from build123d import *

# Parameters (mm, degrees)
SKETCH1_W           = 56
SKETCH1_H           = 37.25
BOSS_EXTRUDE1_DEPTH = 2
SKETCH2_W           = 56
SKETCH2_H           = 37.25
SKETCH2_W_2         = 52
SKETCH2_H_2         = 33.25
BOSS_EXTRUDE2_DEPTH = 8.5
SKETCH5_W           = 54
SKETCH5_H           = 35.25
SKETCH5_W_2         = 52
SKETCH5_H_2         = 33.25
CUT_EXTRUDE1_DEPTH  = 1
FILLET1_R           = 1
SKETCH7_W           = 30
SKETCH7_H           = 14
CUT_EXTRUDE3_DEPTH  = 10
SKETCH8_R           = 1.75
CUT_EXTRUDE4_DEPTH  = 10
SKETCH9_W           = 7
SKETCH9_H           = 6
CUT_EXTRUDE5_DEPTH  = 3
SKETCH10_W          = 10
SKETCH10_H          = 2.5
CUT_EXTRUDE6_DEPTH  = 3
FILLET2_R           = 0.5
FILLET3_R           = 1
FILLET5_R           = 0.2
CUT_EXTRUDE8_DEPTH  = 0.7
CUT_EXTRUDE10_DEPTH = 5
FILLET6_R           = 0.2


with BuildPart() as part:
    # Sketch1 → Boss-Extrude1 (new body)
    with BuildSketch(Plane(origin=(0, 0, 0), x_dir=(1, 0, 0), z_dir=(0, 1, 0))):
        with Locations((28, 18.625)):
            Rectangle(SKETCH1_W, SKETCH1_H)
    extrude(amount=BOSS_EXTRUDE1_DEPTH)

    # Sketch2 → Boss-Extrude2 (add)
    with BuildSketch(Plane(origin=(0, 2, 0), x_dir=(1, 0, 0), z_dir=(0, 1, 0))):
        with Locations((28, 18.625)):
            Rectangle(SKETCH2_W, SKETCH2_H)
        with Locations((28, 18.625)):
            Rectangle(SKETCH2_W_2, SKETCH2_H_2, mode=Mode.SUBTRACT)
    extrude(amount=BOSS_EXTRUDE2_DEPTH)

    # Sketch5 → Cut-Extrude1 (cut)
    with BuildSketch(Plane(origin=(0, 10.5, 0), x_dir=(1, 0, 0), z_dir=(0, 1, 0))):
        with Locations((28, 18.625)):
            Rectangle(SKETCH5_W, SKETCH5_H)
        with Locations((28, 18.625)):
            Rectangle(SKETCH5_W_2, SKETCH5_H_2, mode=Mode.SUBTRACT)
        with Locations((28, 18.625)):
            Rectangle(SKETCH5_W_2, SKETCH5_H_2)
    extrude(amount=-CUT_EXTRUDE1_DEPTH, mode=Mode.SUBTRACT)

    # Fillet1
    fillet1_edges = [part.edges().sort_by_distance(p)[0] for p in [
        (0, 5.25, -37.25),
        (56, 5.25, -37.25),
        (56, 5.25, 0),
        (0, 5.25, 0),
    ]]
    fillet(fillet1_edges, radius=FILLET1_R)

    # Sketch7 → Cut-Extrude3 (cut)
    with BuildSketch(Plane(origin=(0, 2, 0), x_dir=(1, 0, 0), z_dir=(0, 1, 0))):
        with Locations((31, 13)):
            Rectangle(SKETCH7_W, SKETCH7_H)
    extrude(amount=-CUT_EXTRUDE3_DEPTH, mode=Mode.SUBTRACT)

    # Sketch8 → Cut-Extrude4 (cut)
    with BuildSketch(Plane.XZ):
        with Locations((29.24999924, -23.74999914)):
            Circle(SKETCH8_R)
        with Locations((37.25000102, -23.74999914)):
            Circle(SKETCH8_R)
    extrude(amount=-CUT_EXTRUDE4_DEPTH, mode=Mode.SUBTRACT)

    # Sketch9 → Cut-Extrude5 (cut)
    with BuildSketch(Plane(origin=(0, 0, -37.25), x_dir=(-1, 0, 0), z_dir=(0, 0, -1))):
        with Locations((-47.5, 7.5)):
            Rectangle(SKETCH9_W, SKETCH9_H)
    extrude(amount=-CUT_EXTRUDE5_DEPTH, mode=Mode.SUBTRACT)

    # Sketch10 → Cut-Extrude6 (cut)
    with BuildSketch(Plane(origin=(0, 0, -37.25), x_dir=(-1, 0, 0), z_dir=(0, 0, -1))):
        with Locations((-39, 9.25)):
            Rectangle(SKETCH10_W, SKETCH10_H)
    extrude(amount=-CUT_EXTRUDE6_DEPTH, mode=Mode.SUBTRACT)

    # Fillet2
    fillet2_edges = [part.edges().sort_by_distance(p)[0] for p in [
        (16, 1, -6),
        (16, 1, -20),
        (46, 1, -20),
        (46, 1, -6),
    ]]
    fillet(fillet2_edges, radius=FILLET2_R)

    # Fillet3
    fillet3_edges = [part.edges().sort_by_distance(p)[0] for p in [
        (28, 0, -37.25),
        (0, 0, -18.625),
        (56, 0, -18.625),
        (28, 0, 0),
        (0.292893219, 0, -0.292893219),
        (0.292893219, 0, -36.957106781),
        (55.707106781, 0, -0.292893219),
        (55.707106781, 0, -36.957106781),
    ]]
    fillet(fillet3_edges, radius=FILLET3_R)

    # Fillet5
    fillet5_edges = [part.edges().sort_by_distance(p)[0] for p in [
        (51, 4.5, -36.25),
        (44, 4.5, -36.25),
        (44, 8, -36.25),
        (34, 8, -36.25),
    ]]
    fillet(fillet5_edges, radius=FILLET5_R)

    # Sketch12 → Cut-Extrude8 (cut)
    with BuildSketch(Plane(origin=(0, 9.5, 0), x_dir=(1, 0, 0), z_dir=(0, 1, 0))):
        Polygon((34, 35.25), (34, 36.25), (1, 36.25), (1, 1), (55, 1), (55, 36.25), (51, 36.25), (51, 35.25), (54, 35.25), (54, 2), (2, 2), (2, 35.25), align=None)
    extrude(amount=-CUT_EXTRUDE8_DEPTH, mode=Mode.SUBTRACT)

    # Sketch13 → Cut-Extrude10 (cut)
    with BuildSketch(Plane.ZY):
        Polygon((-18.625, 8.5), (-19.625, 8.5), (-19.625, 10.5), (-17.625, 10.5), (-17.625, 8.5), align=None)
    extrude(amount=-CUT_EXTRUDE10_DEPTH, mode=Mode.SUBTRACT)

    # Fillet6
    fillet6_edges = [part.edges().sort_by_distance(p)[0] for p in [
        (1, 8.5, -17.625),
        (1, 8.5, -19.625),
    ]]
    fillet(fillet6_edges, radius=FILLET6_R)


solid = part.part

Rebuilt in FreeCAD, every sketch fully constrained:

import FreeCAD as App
import Part
import Sketcher
from FreeCAD import Vector
Q = App.Units.Quantity


def edges_at(feature, points):
    """Names of the edges that pass closest to the given points."""
    edges = feature.Shape.Edges
    near = lambda p: min(range(len(edges)), key=lambda i: edges[i].distToShape(Part.Vertex(*p))[0])
    return sorted({f"Edge{near(p) + 1}" for p in points})


def add_polygon(sketch, points):
    """Adds a closed chain of lines whose ends are joined by coincident constraints."""
    first, n = sketch.GeometryCount, len(points)
    for a, b in zip(points, points[1:] + points[:1]):
        sketch.addGeometry(Part.LineSegment(App.Vector(*a, 0), App.Vector(*b, 0)), False)
    for i in range(n):
        sketch.addConstraint(Sketcher.Constraint("Coincident", first + i, 2, first + (i + 1) % n, 1))

doc = App.newDocument("Part")
params = doc.addObject("Spreadsheet::Sheet", "Params")
for row, (alias, value) in enumerate([
    ("sketch1_width", "56 mm"),
    ("sketch1_height", "37.25 mm"),
    ("pad1_length", "2 mm"),
    ("sketch2_width", "56 mm"),
    ("sketch2_width2", "52 mm"),
    ("sketch2_height", "37.25 mm"),
    ("pad2_length", "8.5 mm"),
    ("sketch3_width", "54 mm"),
    ("sketch3_height", "35.25 mm"),
    ("pocket1_length", "1 mm"),
    ("fillet_radius", "1 mm"),
    ("sketch4_width", "30 mm"),
    ("sketch4_height", "14 mm"),
    ("pocket2_length", "10 mm"),
    ("sketch5_diameter", "3.5 mm"),
    ("pocket3_length", "10 mm"),
    ("sketch6_width", "7 mm"),
    ("sketch6_height", "6 mm"),
    ("pocket4_length", "3 mm"),
    ("sketch7_width", "10 mm"),
    ("sketch7_height", "2.5 mm"),
    ("pocket5_length", "3 mm"),
    ("fillet2_radius", "0.5 mm"),
    ("fillet3_radius", "1 mm"),
    ("fillet4_radius", "0.2 mm"),
    ("sketch8_width", "33 mm"),
    ("sketch8_width2", "54 mm"),
    ("sketch8_width3", "4 mm"),
    ("sketch8_width4", "3 mm"),
    ("sketch8_width5", "52 mm"),
    ("pocket6_length", "0.7 mm"),
    ("sketch9_width", "2 mm"),
    ("pocket7_length", "5 mm"),
    ("fillet5_radius", "0.2 mm"),
], start=1):
    params.set(f"A{row}", alias)
    params.set(f"B{row}", "=" + value)
    params.setAlias(f"B{row}", alias)

body = doc.addObject("PartDesign::Body", "Body")

# Sketch on XZ plane
sketch1 = body.newObject("Sketcher::SketchObject", "Sketch")
sketch1.AttachmentSupport = (doc.getObject("XZ_Plane"), [""])
sketch1.MapMode = "FlatFace"
add_polygon(sketch1, [(0, -37.25), (0, 0), (56, 0), (56, -37.25)])  # lines 0-3
sketch1.addConstraint([
    Sketcher.Constraint("Vertical", 0),
    Sketcher.Constraint("Horizontal", 1),
    Sketcher.Constraint("Vertical", 2),
    Sketcher.Constraint("Horizontal", 3),
    Sketcher.Constraint("Coincident", 0, 2, -1, 1),
    Sketcher.Constraint("DistanceX", 1, 1, 1, 2, Q("56 mm")),
    Sketcher.Constraint("DistanceY", 0, 1, 0, 2, Q("37.25 mm")),
])
sketch1.setExpression("Constraints[9]", "Params.sketch1_width")
sketch1.setExpression("Constraints[10]", "Params.sketch1_height")
pad1 = body.newObject("PartDesign::Pad", "Pad")
pad1.Profile = sketch1
pad1.setExpression("Length", "Params.pad1_length")
pad1.Reversed = True

# Sketch on XZ plane
sketch2 = body.newObject("Sketcher::SketchObject", "Sketch001")
sketch2.AttachmentSupport = (doc.getObject("XZ_Plane"), [""])
sketch2.MapMode = "FlatFace"
sketch2.AttachmentOffset = App.Placement(Vector(0, 0, -2), App.Rotation())
add_polygon(sketch2, [(0, -37.25), (0, 0), (56, 0), (56, -37.25)])  # lines 0-3
add_polygon(sketch2, [(54, -2), (2, -2), (2, -35.25), (54, -35.25)])  # lines 4-7
sketch2.addConstraint([
    Sketcher.Constraint("Vertical", 0),
    Sketcher.Constraint("Horizontal", 1),
    Sketcher.Constraint("Vertical", 2),
    Sketcher.Constraint("Horizontal", 3),
    Sketcher.Constraint("Horizontal", 4),
    Sketcher.Constraint("Vertical", 5),
    Sketcher.Constraint("Horizontal", 6),
    Sketcher.Constraint("Vertical", 7),
    Sketcher.Constraint("Coincident", 0, 2, -1, 1),
    Sketcher.Constraint("DistanceX", 1, 1, 1, 2, Q("56 mm")),
    Sketcher.Constraint("DistanceX", 4, 2, 4, 1, Q("52 mm")),
    Sketcher.Constraint("DistanceX", -1, 1, 4, 2, Q("2 mm")),
    Sketcher.Constraint("DistanceY", 4, 2, -1, 1, Q("2 mm")),
    Sketcher.Constraint("DistanceY", 3, 2, 5, 2, Q("2 mm")),
    Sketcher.Constraint("DistanceY", 0, 1, 0, 2, Q("37.25 mm")),
])
sketch2.setExpression("Constraints[17]", "Params.sketch2_width")
sketch2.setExpression("Constraints[18]", "Params.sketch2_width2")
sketch2.setExpression("Constraints[22]", "Params.sketch2_height")
pad2 = body.newObject("PartDesign::Pad", "Pad001")
pad2.Profile = sketch2
pad2.setExpression("Length", "Params.pad2_length")
pad2.Reversed = True

# Sketch on XZ plane
sketch3 = body.newObject("Sketcher::SketchObject", "Sketch002")
sketch3.AttachmentSupport = (doc.getObject("XZ_Plane"), [""])
sketch3.MapMode = "FlatFace"
sketch3.AttachmentOffset = App.Placement(Vector(0, 0, -10.5), App.Rotation())
add_polygon(sketch3, [(1, -36.25), (1, -1), (55, -1), (55, -36.25)])  # lines 0-3
sketch3.addConstraint([
    Sketcher.Constraint("Vertical", 0),
    Sketcher.Constraint("Horizontal", 1),
    Sketcher.Constraint("Vertical", 2),
    Sketcher.Constraint("Horizontal", 3),
    Sketcher.Constraint("DistanceX", 1, 1, 1, 2, Q("54 mm")),
    Sketcher.Constraint("DistanceX", -1, 1, 0, 2, Q("1 mm")),
    Sketcher.Constraint("DistanceY", 0, 2, -1, 1, Q("1 mm")),
    Sketcher.Constraint("DistanceY", 0, 1, 0, 2, Q("35.25 mm")),
])
sketch3.setExpression("Constraints[8]", "Params.sketch3_width")
sketch3.setExpression("Constraints[11]", "Params.sketch3_height")
pocket1 = body.newObject("PartDesign::Pocket", "Pocket")
pocket1.Profile = sketch3
pocket1.setExpression("Length", "Params.pocket1_length")
pocket1.Reversed = True
doc.recompute()

fillet = body.newObject("PartDesign::Fillet", "Fillet")
fillet.Base = (pocket1, edges_at(pocket1, [
    (0, 5.25, -37.25),
    (56, 5.25, -37.25),
    (56, 5.25, 0),
    (0, 5.25, 0),
]))
fillet.setExpression("Radius", "Params.fillet_radius")

# Sketch on XZ plane
sketch4 = body.newObject("Sketcher::SketchObject", "Sketch003")
sketch4.AttachmentSupport = (doc.getObject("XZ_Plane"), [""])
sketch4.MapMode = "FlatFace"
sketch4.AttachmentOffset = App.Placement(Vector(0, 0, -2), App.Rotation())
add_polygon(sketch4, [(16, -20), (16, -6), (46, -6), (46, -20)])  # lines 0-3
sketch4.addConstraint([
    Sketcher.Constraint("Vertical", 0),
    Sketcher.Constraint("Horizontal", 1),
    Sketcher.Constraint("Vertical", 2),
    Sketcher.Constraint("Horizontal", 3),
    Sketcher.Constraint("DistanceX", 1, 1, 1, 2, Q("30 mm")),
    Sketcher.Constraint("DistanceY", 0, 1, 0, 2, Q("14 mm")),
    Sketcher.Constraint("DistanceX", -1, 1, 0, 2, Q("16 mm")),
    Sketcher.Constraint("DistanceY", 0, 2, -1, 1, Q("6 mm")),
])
sketch4.setExpression("Constraints[8]", "Params.sketch4_width")
sketch4.setExpression("Constraints[9]", "Params.sketch4_height")
pocket2 = body.newObject("PartDesign::Pocket", "Pocket001")
pocket2.Profile = sketch4
pocket2.setExpression("Length", "Params.pocket2_length")
pocket2.Reversed = True

# Sketch on XZ plane
sketch5 = body.newObject("Sketcher::SketchObject", "Sketch004")
sketch5.AttachmentSupport = (doc.getObject("XZ_Plane"), [""])
sketch5.MapMode = "FlatFace"
sketch5.addGeometry([
    Part.Circle(Vector(29.249999, -23.749999, 0), Vector(0, 0, 1), 1.75),
    Part.Circle(Vector(37.250001, -23.749999, 0), Vector(0, 0, 1), 1.75),
], False)
sketch5.addConstraint([
    Sketcher.Constraint("Equal", 0, 1),
    Sketcher.Constraint("Horizontal", 0, 3, 1, 3),
    Sketcher.Constraint("Diameter", 0, Q("3.5 mm")),
    Sketcher.Constraint("DistanceX", 0, 3, 1, 3, Q("8.000002 mm")),
    Sketcher.Constraint("DistanceX", -1, 1, 0, 3, Q("29.249999 mm")),
    Sketcher.Constraint("DistanceY", 0, 3, -1, 1, Q("23.749999 mm")),
])
sketch5.setExpression("Constraints[2]", "Params.sketch5_diameter")
pocket3 = body.newObject("PartDesign::Pocket", "Pocket002")
pocket3.Profile = sketch5
pocket3.setExpression("Length", "Params.pocket3_length")

# Sketch on XY plane
sketch6 = body.newObject("Sketcher::SketchObject", "Sketch005")
sketch6.AttachmentSupport = (doc.getObject("XY_Plane"), [""])
sketch6.MapMode = "FlatFace"
sketch6.AttachmentOffset = App.Placement(Vector(0, 0, -37.25), App.Rotation())
add_polygon(sketch6, [(51, 10.5), (51, 4.5), (44, 4.5), (44, 10.5)])  # lines 0-3
sketch6.addConstraint([
    Sketcher.Constraint("Vertical", 0),
    Sketcher.Constraint("Horizontal", 1),
    Sketcher.Constraint("Vertical", 2),
    Sketcher.Constraint("Horizontal", 3),
    Sketcher.Constraint("DistanceX", 1, 2, 1, 1, Q("7 mm")),
    Sketcher.Constraint("DistanceY", 0, 2, 0, 1, Q("6 mm")),
    Sketcher.Constraint("DistanceX", -1, 1, 0, 2, Q("51 mm")),
    Sketcher.Constraint("DistanceY", -1, 1, 0, 2, Q("4.5 mm")),
])
sketch6.setExpression("Constraints[8]", "Params.sketch6_width")
sketch6.setExpression("Constraints[9]", "Params.sketch6_height")
pocket4 = body.newObject("PartDesign::Pocket", "Pocket003")
pocket4.Profile = sketch6
pocket4.setExpression("Length", "Params.pocket4_length")
pocket4.Reversed = True

# Sketch on XY plane
sketch7 = body.newObject("Sketcher::SketchObject", "Sketch006")
sketch7.AttachmentSupport = (doc.getObject("XY_Plane"), [""])
sketch7.MapMode = "FlatFace"
sketch7.AttachmentOffset = App.Placement(Vector(0, 0, -37.25), App.Rotation())
add_polygon(sketch7, [(44, 10.5), (44, 8), (34, 8), (34, 10.5)])  # lines 0-3
sketch7.addConstraint([
    Sketcher.Constraint("Vertical", 0),
    Sketcher.Constraint("Horizontal", 1),
    Sketcher.Constraint("Vertical", 2),
    Sketcher.Constraint("Horizontal", 3),
    Sketcher.Constraint("DistanceX", 1, 2, 1, 1, Q("10 mm")),
    Sketcher.Constraint("DistanceY", 0, 2, 0, 1, Q("2.5 mm")),
    Sketcher.Constraint("DistanceX", -1, 1, 0, 2, Q("44 mm")),
    Sketcher.Constraint("DistanceY", -1, 1, 0, 2, Q("8 mm")),
])
sketch7.setExpression("Constraints[8]", "Params.sketch7_width")
sketch7.setExpression("Constraints[9]", "Params.sketch7_height")
pocket5 = body.newObject("PartDesign::Pocket", "Pocket004")
pocket5.Profile = sketch7
pocket5.setExpression("Length", "Params.pocket5_length")
pocket5.Reversed = True
doc.recompute()

fillet2 = body.newObject("PartDesign::Fillet", "Fillet001")
fillet2.Base = (pocket5, edges_at(pocket5, [
    (16, 1, -6),
    (16, 1, -20),
    (46, 1, -20),
    (46, 1, -6),
]))
fillet2.setExpression("Radius", "Params.fillet2_radius")
doc.recompute()

fillet3 = body.newObject("PartDesign::Fillet", "Fillet002")
fillet3.Base = (fillet2, edges_at(fillet2, [
    (28, 0, -37.25),
    (0, 0, -18.625),
    (56, 0, -18.625),
    (28, 0, 0),
    (0.293, 0, -0.293),
    (0.293, 0, -36.957),
    (55.707, 0, -0.293),
    (55.707, 0, -36.957),
]))
fillet3.setExpression("Radius", "Params.fillet3_radius")
doc.recompute()

fillet4 = body.newObject("PartDesign::Fillet", "Fillet003")
fillet4.Base = (fillet3, edges_at(fillet3, [
    (51, 4.5, -36.25),
    (44, 4.5, -36.25),
    (44, 8, -36.25),
    (34, 8, -36.25),
]))
fillet4.setExpression("Radius", "Params.fillet4_radius")

# Sketch on XZ plane
sketch8 = body.newObject("Sketcher::SketchObject", "Sketch007")
sketch8.AttachmentSupport = (doc.getObject("XZ_Plane"), [""])
sketch8.MapMode = "FlatFace"
sketch8.AttachmentOffset = App.Placement(Vector(0, 0, -9.5), App.Rotation())
add_polygon(sketch8, [(34, -35.25), (34, -36.25), (1, -36.25), (1, -1), (55, -1), (55, -36.25), (51, -36.25), (51, -35.25), (54, -35.25), (54, -2), (2, -2), (2, -35.25)])  # lines 0-11
sketch8.addConstraint([
    Sketcher.Constraint("Vertical", 0),
    Sketcher.Constraint("Horizontal", 1),
    Sketcher.Constraint("Vertical", 2),
    Sketcher.Constraint("Horizontal", 3),
    Sketcher.Constraint("Vertical", 4),
    Sketcher.Constraint("Horizontal", 5),
    Sketcher.Constraint("Vertical", 6),
    Sketcher.Constraint("Horizontal", 7),
    Sketcher.Constraint("Vertical", 8),
    Sketcher.Constraint("Horizontal", 9),
    Sketcher.Constraint("Vertical", 10),
    Sketcher.Constraint("Horizontal", 11),
    Sketcher.Constraint("Horizontal", 1, 2, 4, 2),
    Sketcher.Constraint("Horizontal", 7, 2, 10, 2),
    Sketcher.Constraint("DistanceX", 1, 2, 1, 1, Q("33 mm")),
    Sketcher.Constraint("DistanceX", 3, 1, 3, 2, Q("54 mm")),
    Sketcher.Constraint("DistanceX", 5, 2, 5, 1, Q("4 mm")),
    Sketcher.Constraint("DistanceX", 7, 1, 7, 2, Q("3 mm")),
    Sketcher.Constraint("DistanceX", 9, 2, 9, 1, Q("52 mm")),
    Sketcher.Constraint("DistanceY", 0, 2, 0, 1, Q("1 mm")),
    Sketcher.Constraint("DistanceX", -1, 1, 0, 2, Q("34 mm")),
    Sketcher.Constraint("DistanceY", 2, 2, -1, 1, Q("1 mm")),
    Sketcher.Constraint("DistanceY", 8, 2, -1, 1, Q("2 mm")),
    Sketcher.Constraint("DistanceY", 2, 1, 2, 2, Q("35.25 mm")),
])
sketch8.setExpression("Constraints[26]", "Params.sketch8_width")
sketch8.setExpression("Constraints[27]", "Params.sketch8_width2")
sketch8.setExpression("Constraints[28]", "Params.sketch8_width3")
sketch8.setExpression("Constraints[29]", "Params.sketch8_width4")
sketch8.setExpression("Constraints[30]", "Params.sketch8_width5")
pocket6 = body.newObject("PartDesign::Pocket", "Pocket005")
pocket6.Profile = sketch8
pocket6.setExpression("Length", "Params.pocket6_length")
pocket6.Reversed = True

# Sketch on YZ plane
sketch9 = body.newObject("Sketcher::SketchObject", "Sketch008")
sketch9.AttachmentSupport = (doc.getObject("YZ_Plane"), [""])
sketch9.MapMode = "FlatFace"
add_polygon(sketch9, [(8.5, -19.625), (8.5, -17.625), (10.5, -17.625), (10.5, -19.625)])  # lines 0-3
sketch9.addConstraint([
    Sketcher.Constraint("Vertical", 0),
    Sketcher.Constraint("Horizontal", 1),
    Sketcher.Constraint("Vertical", 2),
    Sketcher.Constraint("Horizontal", 3),
    Sketcher.Constraint("Equal", 3, 0),
    Sketcher.Constraint("DistanceX", 1, 1, 1, 2, Q("2 mm")),
    Sketcher.Constraint("DistanceX", -1, 1, 0, 2, Q("8.5 mm")),
    Sketcher.Constraint("DistanceY", 0, 2, -1, 1, Q("17.625 mm")),
])
sketch9.setExpression("Constraints[9]", "Params.sketch9_width")
pocket7 = body.newObject("PartDesign::Pocket", "Pocket006")
pocket7.Profile = sketch9
pocket7.setExpression("Length", "Params.pocket7_length")
pocket7.Reversed = True
doc.recompute()

fillet5 = body.newObject("PartDesign::Fillet", "Fillet004")
fillet5.Base = (pocket7, edges_at(pocket7, [(1, 8.5, -17.625), (1, 8.5, -19.625)]))
fillet5.setExpression("Radius", "Params.fillet5_radius")

doc.recompute()
